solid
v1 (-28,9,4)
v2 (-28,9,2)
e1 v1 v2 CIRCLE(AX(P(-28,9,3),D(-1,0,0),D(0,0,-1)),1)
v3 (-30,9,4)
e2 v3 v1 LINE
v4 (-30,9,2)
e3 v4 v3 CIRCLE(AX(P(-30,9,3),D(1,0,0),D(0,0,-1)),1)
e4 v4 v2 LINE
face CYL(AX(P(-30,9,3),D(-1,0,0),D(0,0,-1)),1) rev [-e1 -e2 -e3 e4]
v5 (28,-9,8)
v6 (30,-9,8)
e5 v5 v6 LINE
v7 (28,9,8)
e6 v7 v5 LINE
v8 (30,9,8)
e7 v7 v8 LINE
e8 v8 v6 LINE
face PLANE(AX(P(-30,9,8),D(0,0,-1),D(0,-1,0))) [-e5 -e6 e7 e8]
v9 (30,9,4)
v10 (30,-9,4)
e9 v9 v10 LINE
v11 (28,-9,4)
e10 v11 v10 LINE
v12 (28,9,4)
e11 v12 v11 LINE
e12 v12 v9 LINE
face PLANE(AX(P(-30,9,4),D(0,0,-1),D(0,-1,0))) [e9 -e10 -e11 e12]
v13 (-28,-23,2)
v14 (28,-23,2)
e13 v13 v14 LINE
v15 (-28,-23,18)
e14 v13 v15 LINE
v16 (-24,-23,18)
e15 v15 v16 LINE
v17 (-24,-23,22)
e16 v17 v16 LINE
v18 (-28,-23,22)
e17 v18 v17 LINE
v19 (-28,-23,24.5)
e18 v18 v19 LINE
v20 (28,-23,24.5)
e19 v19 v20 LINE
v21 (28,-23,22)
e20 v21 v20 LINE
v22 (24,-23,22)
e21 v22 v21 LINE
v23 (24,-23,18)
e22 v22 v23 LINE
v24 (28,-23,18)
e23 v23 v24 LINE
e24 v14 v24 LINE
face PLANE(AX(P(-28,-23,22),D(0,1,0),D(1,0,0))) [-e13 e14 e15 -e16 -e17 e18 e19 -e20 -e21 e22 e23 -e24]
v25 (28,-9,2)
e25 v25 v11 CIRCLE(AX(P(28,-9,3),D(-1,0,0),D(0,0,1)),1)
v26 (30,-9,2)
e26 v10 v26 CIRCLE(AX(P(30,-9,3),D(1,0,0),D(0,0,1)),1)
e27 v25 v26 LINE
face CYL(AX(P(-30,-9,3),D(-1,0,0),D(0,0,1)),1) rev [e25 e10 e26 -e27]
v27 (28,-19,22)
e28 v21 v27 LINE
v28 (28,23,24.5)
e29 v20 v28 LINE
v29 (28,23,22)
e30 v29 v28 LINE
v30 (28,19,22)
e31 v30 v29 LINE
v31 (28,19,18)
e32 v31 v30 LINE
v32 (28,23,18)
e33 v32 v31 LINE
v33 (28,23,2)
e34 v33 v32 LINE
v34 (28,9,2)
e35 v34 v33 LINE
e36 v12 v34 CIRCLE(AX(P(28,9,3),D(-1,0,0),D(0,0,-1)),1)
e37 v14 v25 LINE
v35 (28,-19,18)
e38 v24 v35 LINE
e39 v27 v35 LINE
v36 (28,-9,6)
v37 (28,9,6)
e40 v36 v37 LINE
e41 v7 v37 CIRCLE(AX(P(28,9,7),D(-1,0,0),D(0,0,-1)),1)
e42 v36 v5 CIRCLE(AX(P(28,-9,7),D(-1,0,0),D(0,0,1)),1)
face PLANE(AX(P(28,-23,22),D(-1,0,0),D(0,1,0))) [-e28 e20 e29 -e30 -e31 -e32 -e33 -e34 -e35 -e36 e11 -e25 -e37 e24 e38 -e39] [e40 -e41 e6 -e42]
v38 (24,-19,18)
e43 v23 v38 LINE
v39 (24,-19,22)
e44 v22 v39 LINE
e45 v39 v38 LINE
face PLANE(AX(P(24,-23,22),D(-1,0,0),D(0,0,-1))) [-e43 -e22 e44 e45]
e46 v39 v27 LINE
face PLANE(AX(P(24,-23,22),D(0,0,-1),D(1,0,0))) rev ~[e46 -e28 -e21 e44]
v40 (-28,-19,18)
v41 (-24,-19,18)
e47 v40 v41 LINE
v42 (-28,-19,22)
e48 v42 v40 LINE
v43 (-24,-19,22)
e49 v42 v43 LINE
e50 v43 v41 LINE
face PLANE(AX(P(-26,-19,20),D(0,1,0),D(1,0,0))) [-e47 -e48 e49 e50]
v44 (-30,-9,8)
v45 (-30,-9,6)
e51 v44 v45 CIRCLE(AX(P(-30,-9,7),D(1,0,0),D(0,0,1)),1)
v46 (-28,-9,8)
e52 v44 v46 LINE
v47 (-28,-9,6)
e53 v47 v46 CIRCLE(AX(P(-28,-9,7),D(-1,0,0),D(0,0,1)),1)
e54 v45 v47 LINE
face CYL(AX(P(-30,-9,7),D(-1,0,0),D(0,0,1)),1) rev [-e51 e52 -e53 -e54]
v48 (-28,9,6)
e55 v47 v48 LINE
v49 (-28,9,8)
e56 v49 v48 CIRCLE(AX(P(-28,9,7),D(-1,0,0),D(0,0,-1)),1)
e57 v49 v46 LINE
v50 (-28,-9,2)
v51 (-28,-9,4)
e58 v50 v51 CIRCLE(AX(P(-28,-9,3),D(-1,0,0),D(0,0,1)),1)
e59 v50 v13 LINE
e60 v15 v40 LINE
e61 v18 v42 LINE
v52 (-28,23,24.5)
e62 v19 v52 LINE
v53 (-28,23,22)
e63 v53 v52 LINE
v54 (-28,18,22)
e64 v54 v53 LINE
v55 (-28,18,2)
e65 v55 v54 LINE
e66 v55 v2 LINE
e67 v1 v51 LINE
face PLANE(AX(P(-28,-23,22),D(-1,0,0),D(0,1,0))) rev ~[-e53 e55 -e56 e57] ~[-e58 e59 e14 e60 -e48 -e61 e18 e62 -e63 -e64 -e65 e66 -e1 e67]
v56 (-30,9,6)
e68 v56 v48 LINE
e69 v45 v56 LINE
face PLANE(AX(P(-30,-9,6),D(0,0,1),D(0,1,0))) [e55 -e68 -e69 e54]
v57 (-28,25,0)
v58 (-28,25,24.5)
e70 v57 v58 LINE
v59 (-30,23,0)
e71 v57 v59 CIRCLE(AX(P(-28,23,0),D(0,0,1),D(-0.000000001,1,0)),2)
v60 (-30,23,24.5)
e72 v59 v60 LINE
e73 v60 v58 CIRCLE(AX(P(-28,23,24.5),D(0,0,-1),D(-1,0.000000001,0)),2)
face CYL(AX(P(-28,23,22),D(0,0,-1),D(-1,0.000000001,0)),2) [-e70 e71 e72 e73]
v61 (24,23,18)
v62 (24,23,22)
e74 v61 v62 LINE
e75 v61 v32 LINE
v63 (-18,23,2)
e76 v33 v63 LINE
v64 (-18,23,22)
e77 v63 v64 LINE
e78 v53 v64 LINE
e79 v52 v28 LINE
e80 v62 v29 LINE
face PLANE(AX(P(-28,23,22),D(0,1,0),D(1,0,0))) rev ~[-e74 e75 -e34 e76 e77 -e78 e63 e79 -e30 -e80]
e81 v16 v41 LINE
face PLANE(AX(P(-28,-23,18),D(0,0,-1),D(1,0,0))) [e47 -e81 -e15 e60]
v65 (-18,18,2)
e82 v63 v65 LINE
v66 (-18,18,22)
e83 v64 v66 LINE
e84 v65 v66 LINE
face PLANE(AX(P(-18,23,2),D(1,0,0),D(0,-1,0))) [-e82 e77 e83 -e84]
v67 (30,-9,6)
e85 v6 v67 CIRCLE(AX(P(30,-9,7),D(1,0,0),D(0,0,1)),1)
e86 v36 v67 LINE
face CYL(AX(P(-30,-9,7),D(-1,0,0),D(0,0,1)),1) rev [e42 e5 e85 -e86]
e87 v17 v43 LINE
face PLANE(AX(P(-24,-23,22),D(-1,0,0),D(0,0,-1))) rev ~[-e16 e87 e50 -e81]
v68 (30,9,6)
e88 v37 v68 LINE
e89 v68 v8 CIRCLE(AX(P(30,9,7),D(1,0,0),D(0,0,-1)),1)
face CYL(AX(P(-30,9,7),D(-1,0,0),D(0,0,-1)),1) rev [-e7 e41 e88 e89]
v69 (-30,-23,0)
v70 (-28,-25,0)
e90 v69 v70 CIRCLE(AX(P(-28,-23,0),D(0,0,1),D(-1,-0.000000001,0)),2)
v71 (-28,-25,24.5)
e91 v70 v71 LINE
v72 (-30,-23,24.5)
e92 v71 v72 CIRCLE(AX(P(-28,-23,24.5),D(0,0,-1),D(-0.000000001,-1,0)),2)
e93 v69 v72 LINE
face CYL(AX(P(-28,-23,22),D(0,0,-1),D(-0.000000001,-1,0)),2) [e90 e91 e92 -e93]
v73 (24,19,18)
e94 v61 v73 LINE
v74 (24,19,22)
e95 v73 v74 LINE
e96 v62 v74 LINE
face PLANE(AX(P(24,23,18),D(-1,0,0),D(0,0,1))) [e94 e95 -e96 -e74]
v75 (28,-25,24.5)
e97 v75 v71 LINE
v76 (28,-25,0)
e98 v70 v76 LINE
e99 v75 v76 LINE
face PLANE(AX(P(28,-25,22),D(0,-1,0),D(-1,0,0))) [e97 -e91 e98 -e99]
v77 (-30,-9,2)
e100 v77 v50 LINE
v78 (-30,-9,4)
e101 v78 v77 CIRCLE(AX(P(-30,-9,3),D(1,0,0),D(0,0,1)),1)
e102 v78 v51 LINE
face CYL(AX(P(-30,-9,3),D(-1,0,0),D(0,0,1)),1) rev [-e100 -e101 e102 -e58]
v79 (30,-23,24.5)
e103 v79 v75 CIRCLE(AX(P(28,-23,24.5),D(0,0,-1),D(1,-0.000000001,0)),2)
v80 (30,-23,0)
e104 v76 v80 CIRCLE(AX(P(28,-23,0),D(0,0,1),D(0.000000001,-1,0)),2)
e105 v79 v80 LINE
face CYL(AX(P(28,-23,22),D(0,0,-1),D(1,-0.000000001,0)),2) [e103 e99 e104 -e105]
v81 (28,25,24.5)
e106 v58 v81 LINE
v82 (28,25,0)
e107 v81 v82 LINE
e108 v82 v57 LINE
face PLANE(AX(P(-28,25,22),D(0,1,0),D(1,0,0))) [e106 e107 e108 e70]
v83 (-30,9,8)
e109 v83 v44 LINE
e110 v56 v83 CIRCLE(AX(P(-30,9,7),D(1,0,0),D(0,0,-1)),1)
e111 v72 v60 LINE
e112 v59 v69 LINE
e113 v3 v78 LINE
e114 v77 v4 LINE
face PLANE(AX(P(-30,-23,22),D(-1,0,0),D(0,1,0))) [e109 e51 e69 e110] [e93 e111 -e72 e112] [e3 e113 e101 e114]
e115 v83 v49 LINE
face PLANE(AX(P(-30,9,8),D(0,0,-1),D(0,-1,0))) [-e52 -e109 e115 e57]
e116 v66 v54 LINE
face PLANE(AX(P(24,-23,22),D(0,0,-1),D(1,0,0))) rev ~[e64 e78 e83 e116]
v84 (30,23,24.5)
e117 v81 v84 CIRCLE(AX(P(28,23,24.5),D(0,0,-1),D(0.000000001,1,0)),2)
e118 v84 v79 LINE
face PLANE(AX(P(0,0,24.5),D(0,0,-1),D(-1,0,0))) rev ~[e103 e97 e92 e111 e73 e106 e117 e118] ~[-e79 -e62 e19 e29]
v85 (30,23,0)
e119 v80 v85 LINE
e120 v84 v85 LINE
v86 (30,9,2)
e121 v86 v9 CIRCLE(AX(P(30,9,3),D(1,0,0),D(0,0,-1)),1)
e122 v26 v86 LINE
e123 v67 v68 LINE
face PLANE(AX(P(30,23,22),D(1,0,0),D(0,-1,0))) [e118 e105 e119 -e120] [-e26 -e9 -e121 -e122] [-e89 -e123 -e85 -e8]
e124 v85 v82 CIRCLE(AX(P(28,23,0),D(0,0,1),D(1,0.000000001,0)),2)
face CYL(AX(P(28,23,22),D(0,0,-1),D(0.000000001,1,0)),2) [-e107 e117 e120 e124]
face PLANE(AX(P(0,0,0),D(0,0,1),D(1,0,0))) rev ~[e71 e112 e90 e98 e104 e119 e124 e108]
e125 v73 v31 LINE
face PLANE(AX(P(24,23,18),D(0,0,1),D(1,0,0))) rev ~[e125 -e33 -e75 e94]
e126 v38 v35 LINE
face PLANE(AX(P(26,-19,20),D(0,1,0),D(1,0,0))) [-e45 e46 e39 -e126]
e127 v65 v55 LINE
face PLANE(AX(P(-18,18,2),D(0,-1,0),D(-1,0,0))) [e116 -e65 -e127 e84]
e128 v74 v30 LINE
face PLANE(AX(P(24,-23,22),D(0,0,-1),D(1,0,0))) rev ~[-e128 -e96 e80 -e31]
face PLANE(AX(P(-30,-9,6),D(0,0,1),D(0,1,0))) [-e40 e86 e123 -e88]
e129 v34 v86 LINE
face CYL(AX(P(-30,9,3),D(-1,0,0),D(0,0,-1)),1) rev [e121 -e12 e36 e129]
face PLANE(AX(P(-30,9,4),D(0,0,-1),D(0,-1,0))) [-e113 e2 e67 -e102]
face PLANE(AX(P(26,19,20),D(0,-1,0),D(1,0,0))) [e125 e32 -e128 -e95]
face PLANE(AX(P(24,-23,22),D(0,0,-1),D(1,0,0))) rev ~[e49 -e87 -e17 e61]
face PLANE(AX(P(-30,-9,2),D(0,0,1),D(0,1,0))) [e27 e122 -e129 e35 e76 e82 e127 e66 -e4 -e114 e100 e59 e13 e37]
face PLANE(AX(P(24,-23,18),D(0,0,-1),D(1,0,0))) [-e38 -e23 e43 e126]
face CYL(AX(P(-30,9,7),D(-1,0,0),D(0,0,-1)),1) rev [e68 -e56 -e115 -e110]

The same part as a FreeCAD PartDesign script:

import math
import FreeCAD as App
import Part
import Sketcher

doc = App.newDocument("Part")
body = doc.addObject("PartDesign::Body", "Body")

# Sketch on XY plane
sketch1 = body.newObject("Sketcher::SketchObject", "Sketch")
sketch1.AttachmentSupport = (doc.getObject("XY_Plane"), [""])
sketch1.MapMode = "FlatFace"
sketch1.addGeometry([
    Part.LineSegment(App.Vector(-28, -25, 0), App.Vector(28, -25, 0)),  # 0
    Part.ArcOfCircle(Part.Circle(App.Vector(28, -23, 0), App.Vector(0, 0, 1), 2), math.radians(-90), math.radians(0)),  # 1
    Part.LineSegment(App.Vector(30, -23, 0), App.Vector(30, 23, 0)),  # 2
    Part.ArcOfCircle(Part.Circle(App.Vector(28, 23, 0), App.Vector(0, 0, 1), 2), math.radians(0), math.radians(90)),  # 3
    Part.LineSegment(App.Vector(28, 25, 0), App.Vector(-28, 25, 0)),  # 4
    Part.ArcOfCircle(Part.Circle(App.Vector(-28, 23, 0), App.Vector(0, 0, 1), 2), math.radians(90), math.radians(180)),  # 5
    Part.LineSegment(App.Vector(-30, 23, 0), App.Vector(-30, -23, 0)),  # 6
    Part.ArcOfCircle(Part.Circle(App.Vector(-28, -23, 0), App.Vector(0, 0, 1), 2), math.radians(-180), math.radians(-90)),  # 7
], False)
sketch1.addConstraint([
    Sketcher.Constraint("Tangent", 0, 2, 1, 1),
    Sketcher.Constraint("Tangent", 1, 2, 2, 1),
    Sketcher.Constraint("Tangent", 2, 2, 3, 1),
    Sketcher.Constraint("Tangent", 3, 2, 4, 1),
    Sketcher.Constraint("Tangent", 4, 2, 5, 1),
    Sketcher.Constraint("Tangent", 5, 2, 6, 1),
    Sketcher.Constraint("Tangent", 6, 2, 7, 1),
    Sketcher.Constraint("Tangent", 7, 2, 0, 1),
    Sketcher.Constraint("Horizontal", 0),
    Sketcher.Constraint("Vertical", 2),
    Sketcher.Constraint("Horizontal", 4),
    Sketcher.Constraint("Vertical", 6),
    Sketcher.Constraint("Equal", 1, 3),
    Sketcher.Constraint("Equal", 3, 5),
    Sketcher.Constraint("Equal", 5, 7),
    Sketcher.Constraint("Symmetric", 1, 3, 5, 3, -1, 1),
    Sketcher.Constraint("Radius", 1, 2.0),
    Sketcher.Constraint("DistanceX", 0, 1, 0, 2, 56.0),
    Sketcher.Constraint("DistanceY", 2, 1, 2, 2, 46.0),
])
pad1 = body.newObject("PartDesign::Pad", "Pad")
pad1.Profile = sketch1
pad1.Length = 2

# Sketch on XY plane
sketch2 = body.newObject("Sketcher::SketchObject", "Sketch001")
sketch2.AttachmentSupport = (doc.getObject("XY_Plane"), [""])
sketch2.MapMode = "FlatFace"
sketch2.AttachmentOffset = App.Placement(App.Vector(0, 0, 2), App.Rotation())
sketch2.addGeometry([
    Part.LineSegment(App.Vector(28, 25, 0), App.Vector(-28, 25, 0)),  # 0
    Part.ArcOfCircle(Part.Circle(App.Vector(-28, 23, 0), App.Vector(0, 0, 1), 2), math.radians(90), math.radians(180)),  # 1
    Part.LineSegment(App.Vector(-30, 23, 0), App.Vector(-30, -23, 0)),  # 2
    Part.ArcOfCircle(Part.Circle(App.Vector(-28, -23, 0), App.Vector(0, 0, 1), 2), math.radians(-180), math.radians(-90)),  # 3
    Part.LineSegment(App.Vector(-28, -25, 0), App.Vector(28, -25, 0)),  # 4
    Part.ArcOfCircle(Part.Circle(App.Vector(28, -23, 0), App.Vector(0, 0, 1), 2), math.radians(-90), math.radians(0)),  # 5
    Part.LineSegment(App.Vector(30, -23, 0), App.Vector(30, 23, 0)),  # 6
    Part.ArcOfCircle(Part.Circle(App.Vector(28, 23, 0), App.Vector(0, 0, 1), 2), math.radians(0), math.radians(90)),  # 7
    Part.LineSegment(App.Vector(-28, -23, 0), App.Vector(-28, 18, 0)),  # 8
    Part.LineSegment(App.Vector(-28, 18, 0), App.Vector(-18, 18, 0)),  # 9
    Part.LineSegment(App.Vector(-18, 18, 0), App.Vector(-18, 23, 0)),  # 10
    Part.LineSegment(App.Vector(-18, 23, 0), App.Vector(28, 23, 0)),  # 11
    Part.LineSegment(App.Vector(28, 23, 0), App.Vector(28, -23, 0)),  # 12
    Part.LineSegment(App.Vector(28, -23, 0), App.Vector(-28, -23, 0)),  # 13
], False)
sketch2.addConstraint([
    Sketcher.Constraint("Tangent", 0, 2, 1, 1),
    Sketcher.Constraint("Tangent", 1, 2, 2, 1),
    Sketcher.Constraint("Tangent", 2, 2, 3, 1),
    Sketcher.Constraint("Tangent", 3, 2, 4, 1),
    Sketcher.Constraint("Tangent", 4, 2, 5, 1),
    Sketcher.Constraint("Tangent", 5, 2, 6, 1),
    Sketcher.Constraint("Tangent", 6, 2, 7, 1),
    Sketcher.Constraint("Tangent", 7, 2, 0, 1),
    Sketcher.Constraint("Coincident", 8, 2, 9, 1),
    Sketcher.Constraint("Coincident", 9, 2, 10, 1),
    Sketcher.Constraint("Coincident", 10, 2, 11, 1),
    Sketcher.Constraint("Coincident", 11, 2, 12, 1),
    Sketcher.Constraint("Coincident", 12, 2, 13, 1),
    Sketcher.Constraint("Coincident", 13, 2, 8, 1),
    Sketcher.Constraint("Horizontal", 0),
    Sketcher.Constraint("Vertical", 2),
    Sketcher.Constraint("Horizontal", 4),
    Sketcher.Constraint("Vertical", 6),
    Sketcher.Constraint("Vertical", 8),
    Sketcher.Constraint("Horizontal", 9),
    Sketcher.Constraint("Vertical", 10),
    Sketcher.Constraint("Horizontal", 11),
    Sketcher.Constraint("Vertical", 12),
    Sketcher.Constraint("Horizontal", 13),
    Sketcher.Constraint("Coincident", 11, 2, 7, 3),
    Sketcher.Constraint("Coincident", 12, 2, 5, 3),
    Sketcher.Constraint("Coincident", 13, 2, 3, 3),
    Sketcher.Constraint("Equal", 1, 3),
    Sketcher.Constraint("Symmetric", 1, 3, 5, 3, -1, 1),
    Sketcher.Constraint("Equal", 11, 2),
    Sketcher.Constraint("Radius", 1, 2.0),
    Sketcher.Constraint("DistanceX", 0, 2, 0, 1, 56.0),
    Sketcher.Constraint("DistanceX", 9, 1, 9, 2, 10.0),
    Sketcher.Constraint("DistanceY", 8, 1, 8, 2, 41.0),
])
pad2 = body.newObject("PartDesign::Pad", "Pad001")
pad2.Profile = sketch2
pad2.Length = 20

# Sketch on XZ plane
sketch3 = body.newObject("Sketcher::SketchObject", "Sketch002")
sketch3.AttachmentSupport = (doc.getObject("XZ_Plane"), [""])
sketch3.MapMode = "FlatFace"
sketch3.AttachmentOffset = App.Placement(App.Vector(0, 0, -23), App.Rotation())
sketch3.addGeometry([
    Part.LineSegment(App.Vector(24, 22, 0), App.Vector(24, 18, 0)),
    Part.LineSegment(App.Vector(24, 18, 0), App.Vector(28, 18, 0)),
    Part.LineSegment(App.Vector(28, 18, 0), App.Vector(28, 22, 0)),
    Part.LineSegment(App.Vector(28, 22, 0), App.Vector(24, 22, 0)),
], False)
sketch3.addConstraint([
    Sketcher.Constraint("Coincident", 0, 2, 1, 1),
    Sketcher.Constraint("Coincident", 1, 2, 2, 1),
    Sketcher.Constraint("Coincident", 2, 2, 3, 1),
    Sketcher.Constraint("Coincident", 3, 2, 0, 1),
    Sketcher.Constraint("Vertical", 0),
    Sketcher.Constraint("Horizontal", 1),
    Sketcher.Constraint("Vertical", 2),
    Sketcher.Constraint("Horizontal", 3),
    Sketcher.Constraint("Equal", 3, 0),
    Sketcher.Constraint("DistanceX", 1, 1, 1, 2, 4.0),
    Sketcher.Constraint("DistanceX", -1, 1, 0, 2, 24.0),
    Sketcher.Constraint("DistanceY", -1, 1, 0, 2, 18.0),
])
pad3 = body.newObject("PartDesign::Pad", "Pad002")
pad3.Profile = sketch3
pad3.Length = 4

# Sketch on XZ plane
sketch4 = body.newObject("Sketcher::SketchObject", "Sketch003")
sketch4.AttachmentSupport = (doc.getObject("XZ_Plane"), [""])
sketch4.MapMode = "FlatFace"
sketch4.AttachmentOffset = App.Placement(App.Vector(0, 0, 23), App.Rotation())
sketch4.addGeometry([
    Part.LineSegment(App.Vector(24, 18, 0), App.Vector(24, 22, 0)),  # 0
    Part.LineSegment(App.Vector(24, 22, 0), App.Vector(28, 22, 0)),  # 1
    Part.LineSegment(App.Vector(28, 22, 0), App.Vector(28, 18, 0)),  # 2
    Part.LineSegment(App.Vector(28, 18, 0), App.Vector(24, 18, 0)),  # 3
    Part.LineSegment(App.Vector(-28, 18, 0), App.Vector(-28, 22, 0)),  # 4
    Part.LineSegment(App.Vector(-28, 22, 0), App.Vector(-24, 22, 0)),  # 5
    Part.LineSegment(App.Vector(-24, 22, 0), App.Vector(-24, 18, 0)),  # 6
    Part.LineSegment(App.Vector(-24, 18, 0), App.Vector(-28, 18, 0)),  # 7
], False)
sketch4.addConstraint([
    Sketcher.Constraint("Coincident", 0, 2, 1, 1),
    Sketcher.Constraint("Coincident", 1, 2, 2, 1),
    Sketcher.Constraint("Coincident", 2, 2, 3, 1),
    Sketcher.Constraint("Coincident", 3, 2, 0, 1),
    Sketcher.Constraint("Coincident", 4, 2, 5, 1),
    Sketcher.Constraint("Coincident", 5, 2, 6, 1),
    Sketcher.Constraint("Coincident", 6, 2, 7, 1),
    Sketcher.Constraint("Coincident", 7, 2, 4, 1),
    Sketcher.Constraint("Vertical", 0),
    Sketcher.Constraint("Horizontal", 1),
    Sketcher.Constraint("Vertical", 2),
    Sketcher.Constraint("Horizontal", 3),
    Sketcher.Constraint("Vertical", 4),
    Sketcher.Constraint("Horizontal", 5),
    Sketcher.Constraint("Vertical", 6),
    Sketcher.Constraint("Horizontal", 7),
    Sketcher.Constraint("Symmetric", 1, 2, 4, 2, -2),
    Sketcher.Constraint("Symmetric", 3, 2, 6, 2, -2),
    Sketcher.Constraint("Equal", 7, 0),
    Sketcher.Constraint("DistanceX", 1, 1, 1, 2, 4.0),
    Sketcher.Constraint("DistanceX", -1, 1, 0, 2, 24.0),
    Sketcher.Constraint("DistanceY", -1, 1, 0, 2, 22.0),
])
pad4 = body.newObject("PartDesign::Pad", "Pad003")
pad4.Profile = sketch4
pad4.Length = 4
pad4.Reversed = True

# Sketch on XY plane
sketch5 = body.newObject("Sketcher::SketchObject", "Sketch004")
sketch5.AttachmentSupport = (doc.getObject("XY_Plane"), [""])
sketch5.MapMode = "FlatFace"
sketch5.AttachmentOffset = App.Placement(App.Vector(0, 0, 22), App.Rotation())
sketch5.addGeometry([
    Part.LineSegment(App.Vector(28, 25, 0), App.Vector(-28, 25, 0)),  # 0
    Part.ArcOfCircle(Part.Circle(App.Vector(-28, 23, 0), App.Vector(0, 0, 1), 2), math.radians(90), math.radians(180)),  # 1
    Part.LineSegment(App.Vector(-30, 23, 0), App.Vector(-30, -23, 0)),  # 2
    Part.ArcOfCircle(Part.Circle(App.Vector(-28, -23, 0), App.Vector(0, 0, 1), 2), math.radians(-180), math.radians(-90)),  # 3
    Part.LineSegment(App.Vector(-28, -25, 0), App.Vector(28, -25, 0)),  # 4
    Part.ArcOfCircle(Part.Circle(App.Vector(28, -23, 0), App.Vector(0, 0, 1), 2), math.radians(-90), math.radians(0)),  # 5
    Part.LineSegment(App.Vector(30, -23, 0), App.Vector(30, 23, 0)),  # 6
    Part.ArcOfCircle(Part.Circle(App.Vector(28, 23, 0), App.Vector(0, 0, 1), 2), math.radians(0), math.radians(90)),  # 7
    Part.LineSegment(App.Vector(-28, -23, 0), App.Vector(-28, 23, 0)),  # 8
    Part.LineSegment(App.Vector(-28, 23, 0), App.Vector(28, 23, 0)),  # 9
    Part.LineSegment(App.Vector(28, 23, 0), App.Vector(28, -23, 0)),  # 10
    Part.LineSegment(App.Vector(28, -23, 0), App.Vector(-28, -23, 0)),  # 11
], False)
sketch5.addConstraint([
    Sketcher.Constraint("Tangent", 0, 2, 1, 1),
    Sketcher.Constraint("Tangent", 1, 2, 2, 1),
    Sketcher.Constraint("Tangent", 2, 2, 3, 1),
    Sketcher.Constraint("Tangent", 3, 2, 4, 1),
    Sketcher.Constraint("Tangent", 4, 2, 5, 1),
    Sketcher.Constraint("Tangent", 5, 2, 6, 1),
    Sketcher.Constraint("Tangent", 6, 2, 7, 1),
    Sketcher.Constraint("Tangent", 7, 2, 0, 1),
    Sketcher.Constraint("Coincident", 8, 2, 9, 1),
    Sketcher.Constraint("Coincident", 9, 2, 10, 1),
    Sketcher.Constraint("Coincident", 10, 2, 11, 1),
    Sketcher.Constraint("Coincident", 11, 2, 8, 1),
    Sketcher.Constraint("Horizontal", 0),
    Sketcher.Constraint("Vertical", 2),
    Sketcher.Constraint("Horizontal", 4),
    Sketcher.Constraint("Vertical", 6),
    Sketcher.Constraint("Vertical", 8),
    Sketcher.Constraint("Horizontal", 9),
    Sketcher.Constraint("Vertical", 10),
    Sketcher.Constraint("Horizontal", 11),
    Sketcher.Constraint("Coincident", 8, 2, 1, 3),
    Sketcher.Constraint("Coincident", 9, 2, 7, 3),
    Sketcher.Constraint("Coincident", 10, 2, 5, 3),
    Sketcher.Constraint("Equal", 1, 3),
    Sketcher.Constraint("Symmetric", 1, 3, 5, 3, -1, 1),
    Sketcher.Constraint("Radius", 1, 2.0),
    Sketcher.Constraint("DistanceX", 0, 2, 0, 1, 56.0),
    Sketcher.Constraint("DistanceY", 2, 2, 2, 1, 46.0),
])
pad5 = body.newObject("PartDesign::Pad", "Pad004")
pad5.Profile = sketch5
pad5.Length = 2.5

# Sketch on YZ plane
sketch6 = body.newObject("Sketcher::SketchObject", "Sketch005")
sketch6.AttachmentSupport = (doc.getObject("YZ_Plane"), [""])
sketch6.MapMode = "FlatFace"
sketch6.AttachmentOffset = App.Placement(App.Vector(0, 0, -30), App.Rotation())
sketch6.addGeometry([
    Part.LineSegment(App.Vector(-9, 8, 0), App.Vector(9, 8, 0)),  # 0
    Part.ArcOfCircle(Part.Circle(App.Vector(9, 7, 0), App.Vector(0, 0, 1), 1), math.radians(-90), math.radians(90)),  # 1
    Part.LineSegment(App.Vector(9, 6, 0), App.Vector(-9, 6, 0)),  # 2
    Part.ArcOfCircle(Part.Circle(App.Vector(-9, 7, 0), App.Vector(0, 0, 1), 1), math.radians(90), math.radians(270)),  # 3
    Part.LineSegment(App.Vector(-9, 4, 0), App.Vector(9, 4, 0)),  # 4
    Part.ArcOfCircle(Part.Circle(App.Vector(9, 3, 0), App.Vector(0, 0, 1), 1), math.radians(-90), math.radians(90)),  # 5
    Part.LineSegment(App.Vector(9, 2, 0), App.Vector(-9, 2, 0)),  # 6
    Part.ArcOfCircle(Part.Circle(App.Vector(-9, 3, 0), App.Vector(0, 0, 1), 1), math.radians(90), math.radians(270)),  # 7
], False)
sketch6.addConstraint([
    Sketcher.Constraint("Tangent", 0, 2, 1, 2),
    Sketcher.Constraint("Tangent", 1, 1, 2, 1),
    Sketcher.Constraint("Tangent", 2, 2, 3, 2),
    Sketcher.Constraint("Tangent", 3, 1, 0, 1),
    Sketcher.Constraint("Tangent", 4, 2, 5, 2),
    Sketcher.Constraint("Tangent", 5, 1, 6, 1),
    Sketcher.Constraint("Tangent", 6, 2, 7, 2),
    Sketcher.Constraint("Tangent", 7, 1, 4, 1),
    Sketcher.Constraint("Horizontal", 0),
    Sketcher.Constraint("Horizontal", 2),
    Sketcher.Constraint("Horizontal", 4),
    Sketcher.Constraint("Horizontal", 6),
    Sketcher.Constraint("Equal", 3, 5),
    Sketcher.Constraint("Vertical", 1, 3, 5, 3),
    Sketcher.Constraint("Vertical", 3, 3, 7, 3),
    Sketcher.Constraint("Radius", 1, 1.0),
    Sketcher.Constraint("DistanceX", 0, 1, 0, 2, 18.0),
    Sketcher.Constraint("DistanceX", -1, 1, 1, 3, 9.0),
    Sketcher.Constraint("DistanceY", -1, 1, 1, 3, 7.0),
    Sketcher.Constraint("DistanceY", -1, 1, 5, 3, 3.0),
])
pocket1 = body.newObject("PartDesign::Pocket", "Pocket")
pocket1.Profile = sketch6
pocket1.Length = 60
pocket1.Reversed = True

doc.recompute()
